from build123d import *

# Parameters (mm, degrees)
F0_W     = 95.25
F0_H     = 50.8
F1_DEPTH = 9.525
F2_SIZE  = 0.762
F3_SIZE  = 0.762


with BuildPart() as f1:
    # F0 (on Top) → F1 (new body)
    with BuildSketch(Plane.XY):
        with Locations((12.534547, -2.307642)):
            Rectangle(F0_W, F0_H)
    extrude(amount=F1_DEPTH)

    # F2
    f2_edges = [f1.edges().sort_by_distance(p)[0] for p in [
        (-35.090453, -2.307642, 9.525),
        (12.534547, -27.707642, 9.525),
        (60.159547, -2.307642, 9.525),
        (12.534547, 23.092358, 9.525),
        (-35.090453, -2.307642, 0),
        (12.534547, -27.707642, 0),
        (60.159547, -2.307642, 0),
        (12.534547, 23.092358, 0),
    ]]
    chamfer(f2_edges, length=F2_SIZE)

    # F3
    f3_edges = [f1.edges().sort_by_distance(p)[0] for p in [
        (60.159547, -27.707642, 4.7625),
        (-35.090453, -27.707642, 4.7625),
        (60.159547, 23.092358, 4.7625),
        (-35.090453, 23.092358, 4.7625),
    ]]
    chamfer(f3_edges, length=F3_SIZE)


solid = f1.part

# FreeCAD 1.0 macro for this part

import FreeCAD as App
import Part
import Sketcher
Q = App.Units.Quantity


def edges_at(feature, points):
    """Names of the edges that pass closest to the given points."""
    edges = feature.Shape.Edges
    near = lambda p: min(range(len(edges)), key=lambda i: edges[i].distToShape(Part.Vertex(*p))[0])
    return sorted({f"Edge{near(p) + 1}" for p in points})

doc = App.newDocument("Part")
body = doc.addObject("PartDesign::Body", "Body")

# Sketch on XY plane
sketch1 = body.newObject("Sketcher::SketchObject", "Sketch")
sketch1.AttachmentSupport = (doc.getObject("XY_Plane"), [""])
sketch1.MapMode = "FlatFace"
sketch1.addGeometry([
    Part.LineSegment(App.Vector(-35.090453, 23.092358, 0), App.Vector(-35.090453, -27.707642, 0)),
    Part.LineSegment(App.Vector(-35.090453, -27.707642, 0), App.Vector(60.159547, -27.707642, 0)),
    Part.LineSegment(App.Vector(60.159547, -27.707642, 0), App.Vector(60.159547, 23.092358, 0)),
    Part.LineSegment(App.Vector(60.159547, 23.092358, 0), App.Vector(-35.090453, 23.092358, 0)),
], False)
sketch1.addConstraint([
    Sketcher.Constraint("Coincident", 0, 2, 1, 1),
    Sketcher.Constraint("Coincident", 1, 2, 2, 1),
    Sketcher.Constraint("Coincident", 2, 2, 3, 1),
    Sketcher.Constraint("Coincident", 3, 2, 0, 1),
    Sketcher.Constraint("Vertical", 0),
    Sketcher.Constraint("Horizontal", 1),
    Sketcher.Constraint("Vertical", 2),
    Sketcher.Constraint("Horizontal", 3),
    Sketcher.Constraint("DistanceY", 0, 2, 0, 1, Q("2 in")),
    Sketcher.Constraint("DistanceX", 1, 1, 1, 2, Q("3.75 in")),
    Sketcher.Constraint("DistanceY", 0, 2, -1, 1, 27.707642),
    Sketcher.Constraint("DistanceX", 0, 2, -1, 1, 35.090453),
])
pad1 = body.newObject("PartDesign::Pad", "Pad")
pad1.Profile = sketch1
pad1.Length = Q("0.375 in")
doc.recompute()

chamfer = body.newObject("PartDesign::Chamfer", "Chamfer")
chamfer.Base = (pad1, edges_at(pad1, [
    (-35.09, -2.308, 9.525),
    (12.535, -27.708, 9.525),
    (60.16, -2.308, 9.525),
    (12.535, 23.092, 9.525),
    (-35.09, -2.308, 0),
    (12.535, -27.708, 0),
    (60.16, -2.308, 0),
    (12.535, 23.092, 0),
]))
chamfer.Size = Q("0.03 in")
doc.recompute()

chamfer2 = body.newObject("PartDesign::Chamfer", "Chamfer001")
chamfer2.Base = (chamfer, edges_at(chamfer, [
    (60.16, -27.708, 4.763),
    (-35.09, -27.708, 4.763),
    (60.16, 23.092, 4.763),
    (-35.09, 23.092, 4.763),
]))
chamfer2.Size = Q("0.03 in")

doc.recompute()
